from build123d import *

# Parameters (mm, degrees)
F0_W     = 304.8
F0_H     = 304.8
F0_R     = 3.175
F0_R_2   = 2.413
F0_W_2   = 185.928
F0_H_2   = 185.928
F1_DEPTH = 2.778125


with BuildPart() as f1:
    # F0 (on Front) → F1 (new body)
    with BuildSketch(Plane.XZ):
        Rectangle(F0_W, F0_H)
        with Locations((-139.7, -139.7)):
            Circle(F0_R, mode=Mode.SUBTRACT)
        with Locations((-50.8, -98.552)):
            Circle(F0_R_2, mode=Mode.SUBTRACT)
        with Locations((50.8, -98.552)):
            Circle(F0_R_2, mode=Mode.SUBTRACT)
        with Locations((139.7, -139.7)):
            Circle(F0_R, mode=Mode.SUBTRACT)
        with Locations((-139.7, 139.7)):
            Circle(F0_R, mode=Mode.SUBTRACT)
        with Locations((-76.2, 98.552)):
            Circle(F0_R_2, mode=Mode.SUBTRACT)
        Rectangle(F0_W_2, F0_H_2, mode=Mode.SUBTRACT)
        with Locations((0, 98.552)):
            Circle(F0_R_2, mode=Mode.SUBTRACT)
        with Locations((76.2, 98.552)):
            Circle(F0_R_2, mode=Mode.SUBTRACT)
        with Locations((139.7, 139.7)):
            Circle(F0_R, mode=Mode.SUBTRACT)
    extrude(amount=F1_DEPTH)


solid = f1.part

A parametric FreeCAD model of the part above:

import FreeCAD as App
import Part
import Sketcher

V = App.Vector
Q = App.Units.Quantity


def add_polygon(sketch, points):
    """Adds a closed chain of lines whose ends are joined by coincident constraints."""
    first, n = sketch.GeometryCount, len(points)
    for a, b in zip(points, points[1:] + points[:1]):
        sketch.addGeometry(Part.LineSegment(App.Vector(*a, 0), App.Vector(*b, 0)), False)
    for i in range(n):
        sketch.addConstraint(Sketcher.Constraint("Coincident", first + i, 2, first + (i + 1) % n, 1))

doc = App.newDocument("Part")
body = doc.addObject("PartDesign::Body", "Body")

# Sketch on XZ plane
sketch1 = body.newObject("Sketcher::SketchObject", "Sketch")
sketch1.AttachmentSupport = (doc.getObject("XZ_Plane"), [""])
sketch1.MapMode = "FlatFace"
add_polygon(sketch1, [(-152.4, 152.4), (-152.4, -152.4), (152.4, -152.4), (152.4, 152.4)])  # lines 0-3
sketch1.addGeometry(Part.Circle(V(-139.7, -139.7, 0), V(0, 0, 1), 3.2), False)  # 4
sketch1.addGeometry(Part.Circle(V(-50.8, -98.6, 0), V(0, 0, 1), 2.4), False)  # 5
sketch1.addGeometry(Part.Circle(V(50.8, -98.6, 0), V(0, 0, 1), 2.4), False)  # 6
sketch1.addGeometry(Part.Circle(V(139.7, -139.7, 0), V(0, 0, 1), 3.2), False)  # 7
sketch1.addGeometry(Part.Circle(V(-76.2, 98.6, 0), V(0, 0, 1), 2.4), False)  # 8
sketch1.addGeometry(Part.Circle(V(-139.7, 139.7, 0), V(0, 0, 1), 3.2), False)  # 9
add_polygon(sketch1, [(93, -93), (-93, -93), (-93, 93), (93, 93)])  # lines 10-13
sketch1.addGeometry(Part.Circle(V(0, 98.6, 0), V(0, 0, 1), 2.4), False)  # 14
sketch1.addGeometry(Part.Circle(V(76.2, 98.6, 0), V(0, 0, 1), 2.4), False)  # 15
sketch1.addGeometry(Part.Circle(V(139.7, 139.7, 0), V(0, 0, 1), 3.2), False)  # 16
sketch1.addConstraint([
    Sketcher.Constraint("Vertical", 0),
    Sketcher.Constraint("Horizontal", 1),
    Sketcher.Constraint("Vertical", 2),
    Sketcher.Constraint("Horizontal", 3),
    Sketcher.Constraint("Horizontal", 10),
    Sketcher.Constraint("Vertical", 11),
    Sketcher.Constraint("Horizontal", 12),
    Sketcher.Constraint("Vertical", 13),
    Sketcher.Constraint("Equal", 5, 6),
    Sketcher.Constraint("Equal", 4, 7),
    Sketcher.Constraint("Equal", 6, 8),
    Sketcher.Constraint("Equal", 7, 9),
    Sketcher.Constraint("Equal", 8, 14),
    Sketcher.Constraint("Equal", 14, 15),
    Sketcher.Constraint("Equal", 9, 16),
    Sketcher.Constraint("Symmetric", 7, 3, 9, 3, -1, 1),
    Sketcher.Constraint("Symmetric", 4, 3, 16, 3, -1, 1),
    Sketcher.Constraint("Symmetric", 0, 2, 2, 2, -1, 1),
    Sketcher.Constraint("Symmetric", 10, 2, 12, 2, -1, 1),
    Sketcher.Constraint("Symmetric", 5, 3, 6, 3, -2),
    Sketcher.Constraint("Symmetric", 4, 3, 7, 3, -2),
    Sketcher.Constraint("Symmetric", 8, 3, 15, 3, -2),
    Sketcher.Constraint("PointOnObject", 14, 3, -2),
    Sketcher.Constraint("Horizontal", 8, 3, 14, 3),
    Sketcher.Constraint("Equal", 3, 0),
    Sketcher.Constraint("Equal", 12, 11),
    Sketcher.Constraint("Diameter", 4, Q("0.25 in")),
    Sketcher.Constraint("Diameter", 5, Q("0.19 in")),
    Sketcher.Constraint("DistanceX", 1, 1, 1, 2, Q("12 in")),
    Sketcher.Constraint("DistanceX", 5, 3, -1, 1, Q("2 in")),
    Sketcher.Constraint("DistanceX", 8, 3, -1, 1, Q("3 in")),
    Sketcher.Constraint("DistanceX", 4, 3, 7, 3, Q("11 in")),
    Sketcher.Constraint("DistanceY", 4, 3, 9, 3, Q("11 in")),
    Sketcher.Constraint("DistanceX", 10, 2, 10, 1, Q("7.32 in")),
    Sketcher.Constraint("DistanceY", 5, 3, -1, 1, Q("3.88 in")),
    Sketcher.Constraint("DistanceY", -1, 1, 8, 3, Q("3.88 in")),
])
pad1 = body.newObject("PartDesign::Pad", "Pad")
pad1.Profile = sketch1
pad1.Length = Q("0.109375 in")

doc.recompute()
